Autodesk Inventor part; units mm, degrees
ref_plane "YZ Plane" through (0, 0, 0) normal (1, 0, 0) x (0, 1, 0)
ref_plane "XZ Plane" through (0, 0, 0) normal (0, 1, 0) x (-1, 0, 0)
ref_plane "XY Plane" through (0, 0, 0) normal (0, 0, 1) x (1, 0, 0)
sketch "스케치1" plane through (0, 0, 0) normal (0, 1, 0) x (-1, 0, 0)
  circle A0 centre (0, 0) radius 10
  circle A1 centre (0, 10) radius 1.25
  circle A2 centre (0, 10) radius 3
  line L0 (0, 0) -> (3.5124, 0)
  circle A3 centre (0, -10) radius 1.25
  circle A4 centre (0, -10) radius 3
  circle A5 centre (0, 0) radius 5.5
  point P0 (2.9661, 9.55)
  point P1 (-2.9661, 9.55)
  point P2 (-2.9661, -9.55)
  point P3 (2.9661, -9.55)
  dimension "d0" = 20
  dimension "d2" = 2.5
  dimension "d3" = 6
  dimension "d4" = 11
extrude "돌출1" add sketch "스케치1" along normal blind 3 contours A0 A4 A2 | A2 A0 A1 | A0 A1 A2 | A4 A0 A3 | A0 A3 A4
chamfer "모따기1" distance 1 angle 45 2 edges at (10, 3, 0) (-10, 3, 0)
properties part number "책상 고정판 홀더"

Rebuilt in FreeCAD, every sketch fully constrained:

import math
import FreeCAD as App
import Part
import Sketcher

V = App.Vector
Q = App.Units.Quantity


def edges_at(feature, points):
    """Names of the edges that pass closest to the given points."""
    edges = feature.Shape.Edges
    near = lambda p: min(range(len(edges)), key=lambda i: edges[i].distToShape(Part.Vertex(*p))[0])
    return sorted({f"Edge{near(p) + 1}" for p in points})

doc = App.newDocument("Part")
body = doc.addObject("PartDesign::Body", "Body")

# Sketch on XZ plane
sketch1 = body.newObject("Sketcher::SketchObject", "Sketch")
sketch1.AttachmentSupport = (doc.getObject("XZ_Plane"), [""])
sketch1.MapMode = "FlatFace"
sketch1.addGeometry(Part.ArcOfCircle(Part.Circle(V(0, 0, 0), V(0, 0, 1), 10), math.radians(107), math.radians(253)), False)
sketch1.addGeometry(Part.ArcOfCircle(Part.Circle(V(0, 10, 0), V(0, 0, 1), 3), math.radians(-9), math.radians(189)), False)
sketch1.addGeometry(Part.ArcOfCircle(Part.Circle(V(0, 0, 0), V(0, 0, 1), 10), math.radians(-73), math.radians(73)), False)
sketch1.addGeometry(Part.ArcOfCircle(Part.Circle(V(0, -10, 0), V(0, 0, 1), 3), math.radians(171), math.radians(369)), False)
sketch1.addGeometry(Part.Circle(V(0, 0, 0), V(0, 0, 1), 5.5), False)
sketch1.addGeometry(Part.Circle(V(0, -10, 0), V(0, 0, 1), 1.2), False)
sketch1.addGeometry(Part.Circle(V(0, 10, 0), V(0, 0, 1), 1.2), False)
sketch1.addConstraint(Sketcher.Constraint("Coincident", 0, 1, 1, 2))
sketch1.addConstraint(Sketcher.Constraint("Coincident", 1, 1, 2, 2))
sketch1.addConstraint(Sketcher.Constraint("Coincident", 2, 1, 3, 2))
sketch1.addConstraint(Sketcher.Constraint("Coincident", 3, 1, 0, 2))
sketch1.addConstraint(Sketcher.Constraint("Coincident", 0, 3, -1, 1))
sketch1.addConstraint(Sketcher.Constraint("Coincident", 2, 3, -1, 1))
sketch1.addConstraint(Sketcher.Constraint("Coincident", 4, 3, -1, 1))
sketch1.addConstraint(Sketcher.Constraint("Coincident", 5, 3, 3, 3))
sketch1.addConstraint(Sketcher.Constraint("Coincident", 6, 3, 1, 3))
sketch1.addConstraint(Sketcher.Constraint("Equal", 0, 2))
sketch1.addConstraint(Sketcher.Constraint("Equal", 1, 3))
sketch1.addConstraint(Sketcher.Constraint("Equal", 5, 6))
sketch1.addConstraint(Sketcher.Constraint("Symmetric", 1, 3, 3, 3, -1, 1))
sketch1.addConstraint(Sketcher.Constraint("PointOnObject", 1, 3, -2))
sketch1.addConstraint(Sketcher.Constraint("Diameter", 4, Q("11 mm")))
sketch1.addConstraint(Sketcher.Constraint("Radius", 0, Q("10 mm")))
sketch1.addConstraint(Sketcher.Constraint("Radius", 1, Q("3 mm")))
sketch1.addConstraint(Sketcher.Constraint("Diameter", 5, Q("2.5 mm")))
sketch1.addConstraint(Sketcher.Constraint("DistanceY", 3, 3, 1, 3, Q("20 mm")))
pad1 = body.newObject("PartDesign::Pad", "Pad")
pad1.Profile = sketch1
pad1.Length = 3
pad1.Reversed = True
doc.recompute()

chamfer = body.newObject("PartDesign::Chamfer", "Chamfer")
chamfer.Base = (pad1, edges_at(pad1, [(10, 3, 0), (-10, 3, 0)]))
chamfer.Size = 1

doc.recompute()
